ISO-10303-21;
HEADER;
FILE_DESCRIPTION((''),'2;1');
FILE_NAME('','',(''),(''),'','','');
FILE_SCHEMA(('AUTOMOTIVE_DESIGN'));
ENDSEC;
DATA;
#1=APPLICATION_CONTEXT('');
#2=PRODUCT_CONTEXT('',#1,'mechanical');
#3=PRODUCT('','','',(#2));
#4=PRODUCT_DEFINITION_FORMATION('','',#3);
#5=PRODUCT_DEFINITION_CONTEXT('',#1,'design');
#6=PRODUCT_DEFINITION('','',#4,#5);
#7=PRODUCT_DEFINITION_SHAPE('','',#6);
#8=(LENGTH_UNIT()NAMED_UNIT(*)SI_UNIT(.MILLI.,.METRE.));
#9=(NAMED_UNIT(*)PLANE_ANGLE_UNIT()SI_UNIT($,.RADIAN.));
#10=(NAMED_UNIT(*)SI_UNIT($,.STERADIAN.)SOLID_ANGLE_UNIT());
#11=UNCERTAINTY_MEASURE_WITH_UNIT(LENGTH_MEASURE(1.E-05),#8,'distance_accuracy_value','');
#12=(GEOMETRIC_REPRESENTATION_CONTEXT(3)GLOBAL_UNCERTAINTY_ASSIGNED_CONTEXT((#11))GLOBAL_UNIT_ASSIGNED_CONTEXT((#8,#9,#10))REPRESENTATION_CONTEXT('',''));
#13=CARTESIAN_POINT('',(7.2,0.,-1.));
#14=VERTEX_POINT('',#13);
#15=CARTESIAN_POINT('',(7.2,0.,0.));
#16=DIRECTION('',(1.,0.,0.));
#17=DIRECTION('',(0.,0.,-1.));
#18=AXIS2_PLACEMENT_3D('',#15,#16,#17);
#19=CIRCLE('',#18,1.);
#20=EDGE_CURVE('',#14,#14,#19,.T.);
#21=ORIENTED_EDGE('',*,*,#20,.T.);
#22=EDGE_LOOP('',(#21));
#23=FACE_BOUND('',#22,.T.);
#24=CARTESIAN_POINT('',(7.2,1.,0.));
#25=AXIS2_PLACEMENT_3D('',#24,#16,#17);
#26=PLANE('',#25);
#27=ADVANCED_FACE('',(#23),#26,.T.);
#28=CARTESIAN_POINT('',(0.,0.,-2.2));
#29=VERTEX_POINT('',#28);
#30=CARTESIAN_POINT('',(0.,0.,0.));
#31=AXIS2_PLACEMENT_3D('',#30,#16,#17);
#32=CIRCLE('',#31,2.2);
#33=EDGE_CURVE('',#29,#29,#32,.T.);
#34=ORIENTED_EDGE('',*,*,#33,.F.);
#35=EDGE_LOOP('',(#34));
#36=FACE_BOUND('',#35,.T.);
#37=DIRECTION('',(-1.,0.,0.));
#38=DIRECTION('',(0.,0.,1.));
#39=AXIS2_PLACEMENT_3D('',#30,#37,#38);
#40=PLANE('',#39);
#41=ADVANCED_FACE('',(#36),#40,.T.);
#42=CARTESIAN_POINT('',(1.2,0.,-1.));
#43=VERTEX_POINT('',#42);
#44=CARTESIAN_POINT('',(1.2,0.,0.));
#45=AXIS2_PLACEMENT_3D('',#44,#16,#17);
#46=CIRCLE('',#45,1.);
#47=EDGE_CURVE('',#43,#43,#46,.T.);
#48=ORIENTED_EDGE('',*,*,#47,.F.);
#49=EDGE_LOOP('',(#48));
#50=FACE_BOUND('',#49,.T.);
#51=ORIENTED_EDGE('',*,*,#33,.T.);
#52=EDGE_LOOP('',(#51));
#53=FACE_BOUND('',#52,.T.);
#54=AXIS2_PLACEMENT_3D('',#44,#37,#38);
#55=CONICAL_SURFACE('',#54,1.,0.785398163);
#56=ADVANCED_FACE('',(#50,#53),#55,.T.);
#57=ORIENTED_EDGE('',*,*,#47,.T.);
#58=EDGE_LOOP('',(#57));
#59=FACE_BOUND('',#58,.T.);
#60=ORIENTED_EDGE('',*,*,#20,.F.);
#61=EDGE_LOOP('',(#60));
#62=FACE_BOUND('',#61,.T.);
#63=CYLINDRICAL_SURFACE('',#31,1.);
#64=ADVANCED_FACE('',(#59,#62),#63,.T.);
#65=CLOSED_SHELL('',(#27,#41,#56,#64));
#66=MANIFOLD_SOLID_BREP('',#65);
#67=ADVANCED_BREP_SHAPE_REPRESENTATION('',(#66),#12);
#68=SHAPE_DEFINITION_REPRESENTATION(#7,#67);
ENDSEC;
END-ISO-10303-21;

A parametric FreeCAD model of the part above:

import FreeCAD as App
import Part
import Sketcher

V = App.Vector
Q = App.Units.Quantity

doc = App.newDocument("Part")
body = doc.addObject("PartDesign::Body", "Body")

# Sketch on XY plane
sketch1 = doc.addObject("Sketcher::SketchObject", "Sketch")
body.addObject(sketch1)
sketch1.AttachmentSupport = (doc.XY_Plane, [""])
sketch1.MapMode = "FlatFace"
sketch1.addGeometry([
    Part.LineSegment(V(0, 2.2, 0), V(0, 0, 0)),  # 0
    Part.LineSegment(V(0, 0, 0), V(7.2, 0, 0)),  # 1
    Part.LineSegment(V(7.2, 0, 0), V(7.2, 1, 0)),  # 2
    Part.LineSegment(V(7.2, 1, 0), V(1.2, 1, 0)),  # 3
    Part.LineSegment(V(1.2, 1, 0), V(0, 2.2, 0)),  # 4
], False)
sketch1.addConstraint([
    Sketcher.Constraint("Coincident", 0, 2, 1, 1),
    Sketcher.Constraint("Coincident", 1, 2, 2, 1),
    Sketcher.Constraint("Coincident", 2, 2, 3, 1),
    Sketcher.Constraint("Coincident", 3, 2, 4, 1),
    Sketcher.Constraint("Coincident", 4, 2, 0, 1),
    Sketcher.Constraint("Vertical", 0),
    Sketcher.Constraint("Horizontal", 1),
    Sketcher.Constraint("Vertical", 2),
    Sketcher.Constraint("Horizontal", 3),
    Sketcher.Constraint("Coincident", 0, 2, -1, 1),
    Sketcher.Constraint("DistanceX", 3, 2, 3, 1, 6.0),
    Sketcher.Constraint("DistanceY", 2, 1, 2, 2, 1.0),
    Sketcher.Constraint("Angle", 4, Q("135 deg")),
    Sketcher.Constraint("DistanceX", 1, 1, 1, 2, 7.2),
])
revolution = doc.addObject("PartDesign::Revolution", "Revolution")
body.addObject(revolution)
revolution.Profile = sketch1
revolution.ReferenceAxis = (sketch1, ["H_Axis"])
revolution.Angle = 360

doc.recompute()
